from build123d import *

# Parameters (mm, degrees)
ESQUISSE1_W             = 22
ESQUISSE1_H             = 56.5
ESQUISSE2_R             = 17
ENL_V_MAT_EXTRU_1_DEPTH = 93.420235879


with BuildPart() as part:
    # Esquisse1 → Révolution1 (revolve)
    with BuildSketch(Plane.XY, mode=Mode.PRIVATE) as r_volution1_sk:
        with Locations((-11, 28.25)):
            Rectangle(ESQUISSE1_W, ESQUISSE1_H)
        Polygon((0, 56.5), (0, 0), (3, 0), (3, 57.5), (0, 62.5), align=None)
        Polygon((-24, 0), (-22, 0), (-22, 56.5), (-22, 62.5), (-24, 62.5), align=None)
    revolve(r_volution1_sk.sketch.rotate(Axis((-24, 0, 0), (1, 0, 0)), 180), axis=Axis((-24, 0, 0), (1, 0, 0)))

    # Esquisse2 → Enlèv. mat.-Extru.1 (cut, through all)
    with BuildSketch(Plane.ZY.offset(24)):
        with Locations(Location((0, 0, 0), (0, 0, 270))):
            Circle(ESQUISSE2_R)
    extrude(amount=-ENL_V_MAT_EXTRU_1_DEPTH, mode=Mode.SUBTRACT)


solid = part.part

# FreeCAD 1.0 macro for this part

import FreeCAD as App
import Part
import Sketcher

V = App.Vector


def add_polygon(sketch, points):
    """Adds a closed chain of lines whose ends are joined by coincident constraints."""
    first, n = sketch.GeometryCount, len(points)
    for a, b in zip(points, points[1:] + points[:1]):
        sketch.addGeometry(Part.LineSegment(App.Vector(*a, 0), App.Vector(*b, 0)), False)
    for i in range(n):
        sketch.addConstraint(Sketcher.Constraint("Coincident", first + i, 2, first + (i + 1) % n, 1))

doc = App.newDocument("Part")
body = doc.addObject("PartDesign::Body", "Body")

# Sketch on XY plane
sketch1 = doc.addObject("Sketcher::SketchObject", "Sketch")
body.addObject(sketch1)
sketch1.AttachmentSupport = (doc.XY_Plane, [""])
sketch1.MapMode = "FlatFace"
add_polygon(sketch1, [(3, 0), (3, 57.5), (0, 62.5), (0, 56.5), (-22, 56.5), (-22, 62.5), (-24, 62.5), (-24, 0)])  # lines 0-7
sketch1.addConstraint([
    Sketcher.Constraint("Vertical", 0),
    Sketcher.Constraint("Vertical", 2),
    Sketcher.Constraint("Horizontal", 3),
    Sketcher.Constraint("Vertical", 4),
    Sketcher.Constraint("Horizontal", 5),
    Sketcher.Constraint("Vertical", 6),
    Sketcher.Constraint("Horizontal", 7),
    Sketcher.Constraint("PointOnObject", 1, 2, -2),
    Sketcher.Constraint("PointOnObject", 6, 2, -1),
    Sketcher.Constraint("Horizontal", 1, 2, 4, 2),
    Sketcher.Constraint("DistanceX", 3, 2, 3, 1, 22.0),
    Sketcher.Constraint("DistanceX", 5, 2, 5, 1, 2.0),
    Sketcher.Constraint("DistanceX", 7, 1, 7, 2, 27.0),
    Sketcher.Constraint("DistanceY", 2, 2, 2, 1, 6.0),
    Sketcher.Constraint("DistanceY", 0, 1, 0, 2, 57.5),
    Sketcher.Constraint("DistanceY", 6, 2, 6, 1, 62.5),
])
revolution = doc.addObject("PartDesign::Revolution", "Revolution")
body.addObject(revolution)
revolution.Profile = sketch1
revolution.ReferenceAxis = (sketch1, ["H_Axis"])
revolution.Angle = 360

# Sketch on YZ plane
sketch2 = doc.addObject("Sketcher::SketchObject", "Sketch001")
body.addObject(sketch2)
sketch2.AttachmentSupport = (doc.YZ_Plane, [""])
sketch2.MapMode = "FlatFace"
sketch2.AttachmentOffset = App.Placement(V(0, 0, -24), App.Rotation())
sketch2.addGeometry(Part.Circle(V(0, 0, 0), V(0, 0, 1), 17), False)
sketch2.addConstraint([
    Sketcher.Constraint("Coincident", 0, 3, -1, 1),
    Sketcher.Constraint("Diameter", 0, 34.0),
])
pocket1 = doc.addObject("PartDesign::Pocket", "Pocket")
body.addObject(pocket1)
pocket1.Profile = sketch2
pocket1.Type = "ThroughAll"
pocket1.Reversed = True

doc.recompute()
